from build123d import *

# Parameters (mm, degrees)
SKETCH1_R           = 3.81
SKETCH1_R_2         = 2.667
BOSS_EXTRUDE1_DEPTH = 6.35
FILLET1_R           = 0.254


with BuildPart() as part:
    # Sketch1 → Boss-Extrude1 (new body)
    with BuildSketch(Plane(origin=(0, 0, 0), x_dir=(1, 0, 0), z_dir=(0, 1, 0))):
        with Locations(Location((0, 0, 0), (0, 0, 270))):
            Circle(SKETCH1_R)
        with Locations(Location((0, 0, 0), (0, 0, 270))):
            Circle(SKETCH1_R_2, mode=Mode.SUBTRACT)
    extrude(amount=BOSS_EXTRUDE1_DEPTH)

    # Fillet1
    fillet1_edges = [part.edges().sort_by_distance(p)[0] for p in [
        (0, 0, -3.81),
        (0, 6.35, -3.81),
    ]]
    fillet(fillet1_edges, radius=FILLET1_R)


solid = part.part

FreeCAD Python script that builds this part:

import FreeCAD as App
import Part
import Sketcher

V = App.Vector
Q = App.Units.Quantity


def edges_at(feature, points):
    """Names of the edges that pass closest to the given points."""
    edges = feature.Shape.Edges
    near = lambda p: min(range(len(edges)), key=lambda i: edges[i].distToShape(Part.Vertex(*p))[0])
    return sorted({f"Edge{near(p) + 1}" for p in points})

doc = App.newDocument("Part")
body = doc.addObject("PartDesign::Body", "Body")

sketch1 = body.newObject("Sketcher::SketchObject", "Sketch")
sketch1.AttachmentSupport = (doc.getObject("XZ_Plane"), [""])
sketch1.MapMode = "FlatFace"
sketch1.addGeometry([
    Part.Circle(V(0, 0, 0), V(0, 0, 1), 3.8),
    Part.Circle(V(0, 0, 0), V(0, 0, 1), 2.7),
], False)
sketch1.addConstraint([
    Sketcher.Constraint("Coincident", 0, 3, -1, 1),
    Sketcher.Constraint("Coincident", 1, 3, -1, 1),
    Sketcher.Constraint("Diameter", 0, Q("0.3 in")),
    Sketcher.Constraint("Diameter", 1, Q("0.21 in")),
])
pad1 = body.newObject("PartDesign::Pad", "Pad")
pad1.Profile = sketch1
pad1.Length = Q("0.25 in")
pad1.Reversed = True
doc.recompute()

fillet = body.newObject("PartDesign::Fillet", "Fillet")
fillet.Base = (pad1, edges_at(pad1, [(0, 0, -3.81), (0, 6.35, -3.81)]))
fillet.Radius = Q("0.01 in")

doc.recompute()
